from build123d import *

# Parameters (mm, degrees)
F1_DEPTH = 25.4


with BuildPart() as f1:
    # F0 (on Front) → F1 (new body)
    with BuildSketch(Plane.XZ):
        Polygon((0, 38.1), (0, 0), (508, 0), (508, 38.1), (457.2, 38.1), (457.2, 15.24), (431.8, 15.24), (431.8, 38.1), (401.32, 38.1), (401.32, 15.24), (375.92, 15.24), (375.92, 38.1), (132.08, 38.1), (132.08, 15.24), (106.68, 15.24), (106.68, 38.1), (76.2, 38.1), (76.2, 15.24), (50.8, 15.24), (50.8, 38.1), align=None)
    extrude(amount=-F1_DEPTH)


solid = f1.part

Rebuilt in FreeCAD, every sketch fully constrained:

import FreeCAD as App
import Part
import Sketcher

V = App.Vector
Q = App.Units.Quantity

doc = App.newDocument("Part")
body = doc.addObject("PartDesign::Body", "Body")

sketch1 = body.newObject("Sketcher::SketchObject", "Sketch")
sketch1.AttachmentSupport = (doc.getObject("XZ_Plane"), [""])
sketch1.MapMode = "FlatFace"
sketch1.addGeometry(Part.LineSegment(V(0, 38, 0), V(0, 0, 0)), False)
sketch1.addGeometry(Part.LineSegment(V(0, 0, 0), V(508, 0, 0)), False)
sketch1.addGeometry(Part.LineSegment(V(508, 0, 0), V(508, 38, 0)), False)
sketch1.addGeometry(Part.LineSegment(V(508, 38, 0), V(457, 38, 0)), False)
sketch1.addGeometry(Part.LineSegment(V(457, 38, 0), V(457, 15, 0)), False)
sketch1.addGeometry(Part.LineSegment(V(457, 15, 0), V(432, 15, 0)), False)
sketch1.addGeometry(Part.LineSegment(V(432, 15, 0), V(432, 38, 0)), False)
sketch1.addGeometry(Part.LineSegment(V(432, 38, 0), V(401, 38, 0)), False)
sketch1.addGeometry(Part.LineSegment(V(401, 38, 0), V(401, 15, 0)), False)
sketch1.addGeometry(Part.LineSegment(V(401, 15, 0), V(376, 15, 0)), False)
sketch1.addGeometry(Part.LineSegment(V(376, 15, 0), V(376, 38, 0)), False)
sketch1.addGeometry(Part.LineSegment(V(376, 38, 0), V(132, 38, 0)), False)
sketch1.addGeometry(Part.LineSegment(V(132, 38, 0), V(132, 15, 0)), False)
sketch1.addGeometry(Part.LineSegment(V(132, 15, 0), V(107, 15, 0)), False)
sketch1.addGeometry(Part.LineSegment(V(107, 15, 0), V(107, 38, 0)), False)
sketch1.addGeometry(Part.LineSegment(V(107, 38, 0), V(76, 38, 0)), False)
sketch1.addGeometry(Part.LineSegment(V(76, 38, 0), V(76, 15, 0)), False)
sketch1.addGeometry(Part.LineSegment(V(76, 15, 0), V(51, 15, 0)), False)
sketch1.addGeometry(Part.LineSegment(V(51, 15, 0), V(51, 38, 0)), False)
sketch1.addGeometry(Part.LineSegment(V(51, 38, 0), V(0, 38, 0)), False)
sketch1.addConstraint(Sketcher.Constraint("Coincident", 0, 2, 1, 1))
sketch1.addConstraint(Sketcher.Constraint("Coincident", 1, 2, 2, 1))
sketch1.addConstraint(Sketcher.Constraint("Coincident", 2, 2, 3, 1))
sketch1.addConstraint(Sketcher.Constraint("Coincident", 3, 2, 4, 1))
sketch1.addConstraint(Sketcher.Constraint("Coincident", 4, 2, 5, 1))
sketch1.addConstraint(Sketcher.Constraint("Coincident", 5, 2, 6, 1))
sketch1.addConstraint(Sketcher.Constraint("Coincident", 6, 2, 7, 1))
sketch1.addConstraint(Sketcher.Constraint("Coincident", 7, 2, 8, 1))
sketch1.addConstraint(Sketcher.Constraint("Coincident", 8, 2, 9, 1))
sketch1.addConstraint(Sketcher.Constraint("Coincident", 9, 2, 10, 1))
sketch1.addConstraint(Sketcher.Constraint("Coincident", 10, 2, 11, 1))
sketch1.addConstraint(Sketcher.Constraint("Coincident", 11, 2, 12, 1))
sketch1.addConstraint(Sketcher.Constraint("Coincident", 12, 2, 13, 1))
sketch1.addConstraint(Sketcher.Constraint("Coincident", 13, 2, 14, 1))
sketch1.addConstraint(Sketcher.Constraint("Coincident", 14, 2, 15, 1))
sketch1.addConstraint(Sketcher.Constraint("Coincident", 15, 2, 16, 1))
sketch1.addConstraint(Sketcher.Constraint("Coincident", 16, 2, 17, 1))
sketch1.addConstraint(Sketcher.Constraint("Coincident", 17, 2, 18, 1))
sketch1.addConstraint(Sketcher.Constraint("Coincident", 18, 2, 19, 1))
sketch1.addConstraint(Sketcher.Constraint("Coincident", 19, 2, 0, 1))
sketch1.addConstraint(Sketcher.Constraint("Vertical", 0))
sketch1.addConstraint(Sketcher.Constraint("Horizontal", 1))
sketch1.addConstraint(Sketcher.Constraint("Vertical", 2))
sketch1.addConstraint(Sketcher.Constraint("Horizontal", 3))
sketch1.addConstraint(Sketcher.Constraint("Vertical", 4))
sketch1.addConstraint(Sketcher.Constraint("Horizontal", 5))
sketch1.addConstraint(Sketcher.Constraint("Vertical", 6))
sketch1.addConstraint(Sketcher.Constraint("Horizontal", 7))
sketch1.addConstraint(Sketcher.Constraint("Vertical", 8))
sketch1.addConstraint(Sketcher.Constraint("Horizontal", 9))
sketch1.addConstraint(Sketcher.Constraint("Vertical", 10))
sketch1.addConstraint(Sketcher.Constraint("Horizontal", 11))
sketch1.addConstraint(Sketcher.Constraint("Vertical", 12))
sketch1.addConstraint(Sketcher.Constraint("Horizontal", 13))
sketch1.addConstraint(Sketcher.Constraint("Vertical", 14))
sketch1.addConstraint(Sketcher.Constraint("Horizontal", 15))
sketch1.addConstraint(Sketcher.Constraint("Vertical", 16))
sketch1.addConstraint(Sketcher.Constraint("Horizontal", 17))
sketch1.addConstraint(Sketcher.Constraint("Vertical", 18))
sketch1.addConstraint(Sketcher.Constraint("Horizontal", 19))
sketch1.addConstraint(Sketcher.Constraint("Coincident", 0, 2, -1, 1))
sketch1.addConstraint(Sketcher.Constraint("Horizontal", 3, 2, 6, 2))
sketch1.addConstraint(Sketcher.Constraint("Horizontal", 5, 2, 8, 2))
sketch1.addConstraint(Sketcher.Constraint("Horizontal", 7, 2, 10, 2))
sketch1.addConstraint(Sketcher.Constraint("Horizontal", 9, 2, 12, 2))
sketch1.addConstraint(Sketcher.Constraint("Horizontal", 11, 2, 14, 2))
sketch1.addConstraint(Sketcher.Constraint("Horizontal", 13, 2, 16, 2))
sketch1.addConstraint(Sketcher.Constraint("Horizontal", 15, 2, 18, 2))
sketch1.addConstraint(Sketcher.Constraint("Equal", 5, 9))
sketch1.addConstraint(Sketcher.Constraint("Equal", 9, 13))
sketch1.addConstraint(Sketcher.Constraint("Equal", 7, 15))
sketch1.addConstraint(Sketcher.Constraint("Equal", 13, 17))
sketch1.addConstraint(Sketcher.Constraint("Equal", 3, 19))
sketch1.addConstraint(Sketcher.Constraint("DistanceX", 1, 1, 1, 2, Q("20 in")))
sketch1.addConstraint(Sketcher.Constraint("DistanceX", 3, 2, 3, 1, Q("2 in")))
sketch1.addConstraint(Sketcher.Constraint("DistanceX", 5, 2, 5, 1, Q("1 in")))
sketch1.addConstraint(Sketcher.Constraint("DistanceX", 7, 2, 7, 1, Q("1.2 in")))
sketch1.addConstraint(Sketcher.Constraint("DistanceY", 0, 2, 0, 1, Q("1.5 in")))
sketch1.addConstraint(Sketcher.Constraint("DistanceY", 4, 2, 4, 1, Q("0.9 in")))
pad1 = body.newObject("PartDesign::Pad", "Pad")
pad1.Profile = sketch1
pad1.Length = Q("1 in")
pad1.Reversed = True

doc.recompute()
